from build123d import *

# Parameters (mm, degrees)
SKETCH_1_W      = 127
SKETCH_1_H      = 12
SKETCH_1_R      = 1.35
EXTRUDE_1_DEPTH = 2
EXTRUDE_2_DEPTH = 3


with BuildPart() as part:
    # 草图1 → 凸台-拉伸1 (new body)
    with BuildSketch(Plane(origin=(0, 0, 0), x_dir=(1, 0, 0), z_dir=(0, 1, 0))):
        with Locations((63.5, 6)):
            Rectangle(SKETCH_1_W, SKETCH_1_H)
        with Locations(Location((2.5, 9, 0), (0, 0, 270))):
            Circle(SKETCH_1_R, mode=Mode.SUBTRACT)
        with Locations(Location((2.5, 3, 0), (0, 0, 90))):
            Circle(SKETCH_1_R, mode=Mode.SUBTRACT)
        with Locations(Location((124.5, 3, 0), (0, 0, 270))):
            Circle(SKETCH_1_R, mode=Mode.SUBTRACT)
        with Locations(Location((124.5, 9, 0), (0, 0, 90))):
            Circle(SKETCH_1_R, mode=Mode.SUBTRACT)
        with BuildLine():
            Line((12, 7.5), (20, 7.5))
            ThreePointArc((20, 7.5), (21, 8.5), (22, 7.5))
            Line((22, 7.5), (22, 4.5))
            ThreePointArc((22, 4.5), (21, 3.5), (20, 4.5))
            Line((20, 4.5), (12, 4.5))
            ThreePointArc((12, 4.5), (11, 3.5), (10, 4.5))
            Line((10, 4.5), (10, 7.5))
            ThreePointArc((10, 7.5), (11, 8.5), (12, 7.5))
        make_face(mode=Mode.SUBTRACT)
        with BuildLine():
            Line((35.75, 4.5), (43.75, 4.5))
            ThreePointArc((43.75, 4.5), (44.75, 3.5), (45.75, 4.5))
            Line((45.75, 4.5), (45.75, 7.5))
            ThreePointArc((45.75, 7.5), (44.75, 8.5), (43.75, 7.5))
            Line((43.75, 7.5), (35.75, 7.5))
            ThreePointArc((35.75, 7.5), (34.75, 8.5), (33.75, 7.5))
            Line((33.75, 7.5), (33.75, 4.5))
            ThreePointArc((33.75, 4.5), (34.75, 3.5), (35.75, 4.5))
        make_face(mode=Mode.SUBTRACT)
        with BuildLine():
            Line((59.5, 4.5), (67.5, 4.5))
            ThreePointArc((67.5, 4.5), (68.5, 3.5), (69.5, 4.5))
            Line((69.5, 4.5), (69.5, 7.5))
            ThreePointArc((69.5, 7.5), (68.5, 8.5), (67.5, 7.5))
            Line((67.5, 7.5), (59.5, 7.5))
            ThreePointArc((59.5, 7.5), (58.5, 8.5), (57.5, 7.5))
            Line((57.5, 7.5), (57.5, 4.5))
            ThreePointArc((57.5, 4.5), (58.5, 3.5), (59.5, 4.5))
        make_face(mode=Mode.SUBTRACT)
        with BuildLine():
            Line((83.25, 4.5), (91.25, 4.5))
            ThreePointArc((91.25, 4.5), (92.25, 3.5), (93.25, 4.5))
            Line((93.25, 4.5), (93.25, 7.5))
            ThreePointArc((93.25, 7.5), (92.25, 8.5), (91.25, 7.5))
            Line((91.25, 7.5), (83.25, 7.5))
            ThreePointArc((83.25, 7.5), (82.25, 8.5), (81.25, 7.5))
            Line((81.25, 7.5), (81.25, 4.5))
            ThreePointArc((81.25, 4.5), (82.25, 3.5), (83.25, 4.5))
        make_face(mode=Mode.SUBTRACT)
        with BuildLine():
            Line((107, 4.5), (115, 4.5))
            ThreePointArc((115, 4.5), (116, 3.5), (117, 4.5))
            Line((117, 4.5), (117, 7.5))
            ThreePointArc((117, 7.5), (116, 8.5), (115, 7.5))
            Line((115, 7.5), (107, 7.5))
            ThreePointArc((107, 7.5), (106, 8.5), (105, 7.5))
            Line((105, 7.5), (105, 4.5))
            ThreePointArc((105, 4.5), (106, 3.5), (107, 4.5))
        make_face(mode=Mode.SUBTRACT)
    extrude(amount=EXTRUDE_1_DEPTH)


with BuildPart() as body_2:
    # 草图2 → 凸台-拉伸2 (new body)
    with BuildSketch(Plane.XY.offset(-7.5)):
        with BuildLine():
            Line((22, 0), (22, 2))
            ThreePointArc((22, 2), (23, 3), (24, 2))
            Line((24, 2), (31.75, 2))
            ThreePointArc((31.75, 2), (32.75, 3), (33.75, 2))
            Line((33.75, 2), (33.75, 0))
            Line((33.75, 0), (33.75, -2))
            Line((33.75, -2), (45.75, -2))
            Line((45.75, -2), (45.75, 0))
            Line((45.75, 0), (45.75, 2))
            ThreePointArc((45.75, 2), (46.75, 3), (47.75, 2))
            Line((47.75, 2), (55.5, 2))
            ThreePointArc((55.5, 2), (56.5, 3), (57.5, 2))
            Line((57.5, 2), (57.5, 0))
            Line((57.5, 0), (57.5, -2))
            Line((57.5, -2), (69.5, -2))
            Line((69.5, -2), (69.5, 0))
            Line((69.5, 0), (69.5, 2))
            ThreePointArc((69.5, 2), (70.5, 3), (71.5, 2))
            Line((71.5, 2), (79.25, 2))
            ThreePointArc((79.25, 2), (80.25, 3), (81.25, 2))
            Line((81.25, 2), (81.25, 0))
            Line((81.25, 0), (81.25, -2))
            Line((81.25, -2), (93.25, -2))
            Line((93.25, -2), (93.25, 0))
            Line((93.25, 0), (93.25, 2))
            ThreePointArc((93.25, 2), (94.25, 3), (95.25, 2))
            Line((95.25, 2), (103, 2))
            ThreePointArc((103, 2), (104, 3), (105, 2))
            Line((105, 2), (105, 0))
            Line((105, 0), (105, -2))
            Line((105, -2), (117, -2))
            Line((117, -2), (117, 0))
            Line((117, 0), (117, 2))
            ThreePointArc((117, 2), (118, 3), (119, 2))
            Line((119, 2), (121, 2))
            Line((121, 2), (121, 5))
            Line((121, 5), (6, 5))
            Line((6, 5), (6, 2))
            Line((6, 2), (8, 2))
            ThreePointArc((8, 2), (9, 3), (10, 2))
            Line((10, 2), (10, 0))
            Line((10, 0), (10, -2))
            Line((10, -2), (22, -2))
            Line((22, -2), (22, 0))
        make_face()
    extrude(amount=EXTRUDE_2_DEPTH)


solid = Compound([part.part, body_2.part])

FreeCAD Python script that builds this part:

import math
import FreeCAD as App
import Part
import Sketcher
Q = App.Units.Quantity

doc = App.newDocument("Part")
params = doc.addObject("Spreadsheet::Sheet", "Params")
for row, (alias, value) in enumerate([
    ("sketch1_radius", "1 mm"),
    ("sketch1_diameter", "2.7 mm"),
    ("sketch1_width", "127 mm"),
    ("sketch1_width2", "8 mm"),
    ("sketch1_height", "12 mm"),
    ("pad1_length", "2 mm"),
    ("sketch2_radius", "1 mm"),
    ("sketch2_width", "12 mm"),
    ("sketch2_width2", "2 mm"),
    ("sketch2_width3", "115 mm"),
    ("sketch2_height", "4 mm"),
    ("pad2_length", "3 mm"),
], start=1):
    params.set(f"A{row}", alias)
    params.set(f"B{row}", "=" + value)
    params.setAlias(f"B{row}", alias)

body = doc.addObject("PartDesign::Body", "Body")

# Sketch on XZ plane
sketch1 = body.newObject("Sketcher::SketchObject", "Sketch")
sketch1.AttachmentSupport = (doc.getObject("XZ_Plane"), [""])
sketch1.MapMode = "FlatFace"
sketch1.addGeometry(Part.LineSegment(App.Vector(0, -12, 0), App.Vector(0, 0, 0)), False)
sketch1.addGeometry(Part.LineSegment(App.Vector(0, 0, 0), App.Vector(127, 0, 0)), False)
sketch1.addGeometry(Part.LineSegment(App.Vector(127, 0, 0), App.Vector(127, -12, 0)), False)
sketch1.addGeometry(Part.LineSegment(App.Vector(127, -12, 0), App.Vector(0, -12, 0)), False)
sketch1.addGeometry(Part.Circle(App.Vector(2.5, -3, 0), App.Vector(0, 0, 1), 1.35), False)
sketch1.addGeometry(Part.Circle(App.Vector(124.5, -3, 0), App.Vector(0, 0, 1), 1.35), False)
sketch1.addGeometry(Part.ArcOfCircle(Part.Circle(App.Vector(11, -7.5, 0), App.Vector(0, 0, 1), 1), math.radians(180), math.radians(360)), False)
sketch1.addGeometry(Part.LineSegment(App.Vector(12, -7.5, 0), App.Vector(20, -7.5, 0)), False)
sketch1.addGeometry(Part.ArcOfCircle(Part.Circle(App.Vector(21, -7.5, 0), App.Vector(0, 0, 1), 1), math.radians(180), math.radians(360)), False)
sketch1.addGeometry(Part.LineSegment(App.Vector(22, -7.5, 0), App.Vector(22, -4.5, 0)), False)
sketch1.addGeometry(Part.ArcOfCircle(Part.Circle(App.Vector(21, -4.5, 0), App.Vector(0, 0, 1), 1), math.radians(0), math.radians(180)), False)
sketch1.addGeometry(Part.LineSegment(App.Vector(20, -4.5, 0), App.Vector(12, -4.5, 0)), False)
sketch1.addGeometry(Part.ArcOfCircle(Part.Circle(App.Vector(11, -4.5, 0), App.Vector(0, 0, 1), 1), math.radians(0), math.radians(180)), False)
sketch1.addGeometry(Part.LineSegment(App.Vector(10, -4.5, 0), App.Vector(10, -7.5, 0)), False)
sketch1.addGeometry(Part.LineSegment(App.Vector(43.75, -4.5, 0), App.Vector(35.75, -4.5, 0)), False)
sketch1.addGeometry(Part.ArcOfCircle(Part.Circle(App.Vector(34.75, -4.5, 0), App.Vector(0, 0, 1), 1), math.radians(0), math.radians(180)), False)
sketch1.addGeometry(Part.LineSegment(App.Vector(33.75, -4.5, 0), App.Vector(33.75, -7.5, 0)), False)
sketch1.addGeometry(Part.ArcOfCircle(Part.Circle(App.Vector(34.75, -7.5, 0), App.Vector(0, 0, 1), 1), math.radians(180), math.radians(360)), False)
sketch1.addGeometry(Part.LineSegment(App.Vector(35.75, -7.5, 0), App.Vector(43.75, -7.5, 0)), False)
sketch1.addGeometry(Part.ArcOfCircle(Part.Circle(App.Vector(44.75, -7.5, 0), App.Vector(0, 0, 1), 1), math.radians(180), math.radians(360)), False)
sketch1.addGeometry(Part.LineSegment(App.Vector(45.75, -7.5, 0), App.Vector(45.75, -4.5, 0)), False)
sketch1.addGeometry(Part.ArcOfCircle(Part.Circle(App.Vector(44.75, -4.5, 0), App.Vector(0, 0, 1), 1), math.radians(0), math.radians(180)), False)
sketch1.addGeometry(Part.Circle(App.Vector(2.5, -9, 0), App.Vector(0, 0, 1), 1.35), False)
sketch1.addGeometry(Part.LineSegment(App.Vector(67.5, -4.5, 0), App.Vector(59.5, -4.5, 0)), False)
sketch1.addGeometry(Part.ArcOfCircle(Part.Circle(App.Vector(58.5, -4.5, 0), App.Vector(0, 0, 1), 1), math.radians(0), math.radians(180)), False)
sketch1.addGeometry(Part.LineSegment(App.Vector(57.5, -4.5, 0), App.Vector(57.5, -7.5, 0)), False)
sketch1.addGeometry(Part.ArcOfCircle(Part.Circle(App.Vector(58.5, -7.5, 0), App.Vector(0, 0, 1), 1), math.radians(180), math.radians(360)), False)
sketch1.addGeometry(Part.LineSegment(App.Vector(59.5, -7.5, 0), App.Vector(67.5, -7.5, 0)), False)
sketch1.addGeometry(Part.ArcOfCircle(Part.Circle(App.Vector(68.5, -7.5, 0), App.Vector(0, 0, 1), 1), math.radians(180), math.radians(360)), False)
sketch1.addGeometry(Part.LineSegment(App.Vector(69.5, -7.5, 0), App.Vector(69.5, -4.5, 0)), False)
sketch1.addGeometry(Part.ArcOfCircle(Part.Circle(App.Vector(68.5, -4.5, 0), App.Vector(0, 0, 1), 1), math.radians(0), math.radians(180)), False)
sketch1.addGeometry(Part.LineSegment(App.Vector(91.25, -4.5, 0), App.Vector(83.25, -4.5, 0)), False)
sketch1.addGeometry(Part.ArcOfCircle(Part.Circle(App.Vector(82.25, -4.5, 0), App.Vector(0, 0, 1), 1), math.radians(0), math.radians(180)), False)
sketch1.addGeometry(Part.LineSegment(App.Vector(81.25, -4.5, 0), App.Vector(81.25, -7.5, 0)), False)
sketch1.addGeometry(Part.ArcOfCircle(Part.Circle(App.Vector(82.25, -7.5, 0), App.Vector(0, 0, 1), 1), math.radians(180), math.radians(360)), False)
sketch1.addGeometry(Part.LineSegment(App.Vector(83.25, -7.5, 0), App.Vector(91.25, -7.5, 0)), False)
sketch1.addGeometry(Part.ArcOfCircle(Part.Circle(App.Vector(92.25, -7.5, 0), App.Vector(0, 0, 1), 1), math.radians(180), math.radians(360)), False)
sketch1.addGeometry(Part.LineSegment(App.Vector(93.25, -7.5, 0), App.Vector(93.25, -4.5, 0)), False)
sketch1.addGeometry(Part.ArcOfCircle(Part.Circle(App.Vector(92.25, -4.5, 0), App.Vector(0, 0, 1), 1), math.radians(0), math.radians(180)), False)
sketch1.addGeometry(Part.LineSegment(App.Vector(115, -4.5, 0), App.Vector(107, -4.5, 0)), False)
sketch1.addGeometry(Part.ArcOfCircle(Part.Circle(App.Vector(106, -4.5, 0), App.Vector(0, 0, 1), 1), math.radians(0), math.radians(180)), False)
sketch1.addGeometry(Part.LineSegment(App.Vector(105, -4.5, 0), App.Vector(105, -7.5, 0)), False)
sketch1.addGeometry(Part.ArcOfCircle(Part.Circle(App.Vector(106, -7.5, 0), App.Vector(0, 0, 1), 1), math.radians(180), math.radians(360)), False)
sketch1.addGeometry(Part.LineSegment(App.Vector(107, -7.5, 0), App.Vector(115, -7.5, 0)), False)
sketch1.addGeometry(Part.ArcOfCircle(Part.Circle(App.Vector(116, -7.5, 0), App.Vector(0, 0, 1), 1), math.radians(180), math.radians(360)), False)
sketch1.addGeometry(Part.LineSegment(App.Vector(117, -7.5, 0), App.Vector(117, -4.5, 0)), False)
sketch1.addGeometry(Part.ArcOfCircle(Part.Circle(App.Vector(116, -4.5, 0), App.Vector(0, 0, 1), 1), math.radians(0), math.radians(180)), False)
sketch1.addGeometry(Part.Circle(App.Vector(124.5, -9, 0), App.Vector(0, 0, 1), 1.35), False)
sketch1.addConstraint(Sketcher.Constraint("Coincident", 0, 2, 1, 1))
sketch1.addConstraint(Sketcher.Constraint("Coincident", 1, 2, 2, 1))
sketch1.addConstraint(Sketcher.Constraint("Coincident", 2, 2, 3, 1))
sketch1.addConstraint(Sketcher.Constraint("Coincident", 3, 2, 0, 1))
sketch1.addConstraint(Sketcher.Constraint("Coincident", 6, 2, 7, 1))
sketch1.addConstraint(Sketcher.Constraint("Coincident", 7, 2, 8, 1))
sketch1.addConstraint(Sketcher.Constraint("Tangent", 8, 2, 9, 1))
sketch1.addConstraint(Sketcher.Constraint("Tangent", 9, 2, 10, 1))
sketch1.addConstraint(Sketcher.Constraint("Coincident", 10, 2, 11, 1))
sketch1.addConstraint(Sketcher.Constraint("Coincident", 11, 2, 12, 1))
sketch1.addConstraint(Sketcher.Constraint("Tangent", 12, 2, 13, 1))
sketch1.addConstraint(Sketcher.Constraint("Tangent", 13, 2, 6, 1))
sketch1.addConstraint(Sketcher.Constraint("Coincident", 14, 2, 15, 1))
sketch1.addConstraint(Sketcher.Constraint("Tangent", 15, 2, 16, 1))
sketch1.addConstraint(Sketcher.Constraint("Tangent", 16, 2, 17, 1))
sketch1.addConstraint(Sketcher.Constraint("Coincident", 17, 2, 18, 1))
sketch1.addConstraint(Sketcher.Constraint("Coincident", 18, 2, 19, 1))
sketch1.addConstraint(Sketcher.Constraint("Tangent", 19, 2, 20, 1))
sketch1.addConstraint(Sketcher.Constraint("Tangent", 20, 2, 21, 1))
sketch1.addConstraint(Sketcher.Constraint("Coincident", 21, 2, 14, 1))
sketch1.addConstraint(Sketcher.Constraint("Coincident", 23, 2, 24, 1))
sketch1.addConstraint(Sketcher.Constraint("Tangent", 24, 2, 25, 1))
sketch1.addConstraint(Sketcher.Constraint("Tangent", 25, 2, 26, 1))
sketch1.addConstraint(Sketcher.Constraint("Coincident", 26, 2, 27, 1))
sketch1.addConstraint(Sketcher.Constraint("Coincident", 27, 2, 28, 1))
sketch1.addConstraint(Sketcher.Constraint("Tangent", 28, 2, 29, 1))
sketch1.addConstraint(Sketcher.Constraint("Tangent", 29, 2, 30, 1))
sketch1.addConstraint(Sketcher.Constraint("Coincident", 30, 2, 23, 1))
sketch1.addConstraint(Sketcher.Constraint("Coincident", 31, 2, 32, 1))
sketch1.addConstraint(Sketcher.Constraint("Tangent", 32, 2, 33, 1))
sketch1.addConstraint(Sketcher.Constraint("Tangent", 33, 2, 34, 1))
sketch1.addConstraint(Sketcher.Constraint("Coincident", 34, 2, 35, 1))
sketch1.addConstraint(Sketcher.Constraint("Coincident", 35, 2, 36, 1))
sketch1.addConstraint(Sketcher.Constraint("Tangent", 36, 2, 37, 1))
sketch1.addConstraint(Sketcher.Constraint("Tangent", 37, 2, 38, 1))
sketch1.addConstraint(Sketcher.Constraint("Coincident", 38, 2, 31, 1))
sketch1.addConstraint(Sketcher.Constraint("Coincident", 39, 2, 40, 1))
sketch1.addConstraint(Sketcher.Constraint("Tangent", 40, 2, 41, 1))
sketch1.addConstraint(Sketcher.Constraint("Tangent", 41, 2, 42, 1))
sketch1.addConstraint(Sketcher.Constraint("Coincident", 42, 2, 43, 1))
sketch1.addConstraint(Sketcher.Constraint("Coincident", 43, 2, 44, 1))
sketch1.addConstraint(Sketcher.Constraint("Tangent", 44, 2, 45, 1))
sketch1.addConstraint(Sketcher.Constraint("Tangent", 45, 2, 46, 1))
sketch1.addConstraint(Sketcher.Constraint("Coincident", 46, 2, 39, 1))
sketch1.addConstraint(Sketcher.Constraint("Vertical", 0))
sketch1.addConstraint(Sketcher.Constraint("Horizontal", 1))
sketch1.addConstraint(Sketcher.Constraint("Vertical", 2))
sketch1.addConstraint(Sketcher.Constraint("Horizontal", 3))
sketch1.addConstraint(Sketcher.Constraint("Horizontal", 7))
sketch1.addConstraint(Sketcher.Constraint("Vertical", 9))
sketch1.addConstraint(Sketcher.Constraint("Horizontal", 11))
sketch1.addConstraint(Sketcher.Constraint("Vertical", 13))
sketch1.addConstraint(Sketcher.Constraint("Horizontal", 14))
sketch1.addConstraint(Sketcher.Constraint("Vertical", 16))
sketch1.addConstraint(Sketcher.Constraint("Horizontal", 18))
sketch1.addConstraint(Sketcher.Constraint("Vertical", 20))
sketch1.addConstraint(Sketcher.Constraint("Horizontal", 23))
sketch1.addConstraint(Sketcher.Constraint("Vertical", 25))
sketch1.addConstraint(Sketcher.Constraint("Horizontal", 27))
sketch1.addConstraint(Sketcher.Constraint("Vertical", 29))
sketch1.addConstraint(Sketcher.Constraint("Horizontal", 31))
sketch1.addConstraint(Sketcher.Constraint("Vertical", 33))
sketch1.addConstraint(Sketcher.Constraint("Horizontal", 35))
sketch1.addConstraint(Sketcher.Constraint("Vertical", 37))
sketch1.addConstraint(Sketcher.Constraint("Horizontal", 39))
sketch1.addConstraint(Sketcher.Constraint("Vertical", 41))
sketch1.addConstraint(Sketcher.Constraint("Horizontal", 43))
sketch1.addConstraint(Sketcher.Constraint("Vertical", 45))
sketch1.addConstraint(Sketcher.Constraint("Coincident", 0, 2, -1, 1))
sketch1.addConstraint(Sketcher.Constraint("Equal", 4, 5))
sketch1.addConstraint(Sketcher.Constraint("Equal", 6, 8))
sketch1.addConstraint(Sketcher.Constraint("Equal", 8, 10))
sketch1.addConstraint(Sketcher.Constraint("Equal", 10, 12))
sketch1.addConstraint(Sketcher.Constraint("Equal", 12, 15))
sketch1.addConstraint(Sketcher.Constraint("Equal", 15, 17))
sketch1.addConstraint(Sketcher.Constraint("Equal", 17, 19))
sketch1.addConstraint(Sketcher.Constraint("Equal", 19, 21))
sketch1.addConstraint(Sketcher.Constraint("Equal", 5, 22))
sketch1.addConstraint(Sketcher.Constraint("Equal", 21, 24))
sketch1.addConstraint(Sketcher.Constraint("Equal", 24, 26))
sketch1.addConstraint(Sketcher.Constraint("Equal", 26, 28))
sketch1.addConstraint(Sketcher.Constraint("Equal", 28, 30))
sketch1.addConstraint(Sketcher.Constraint("Equal", 30, 32))
sketch1.addConstraint(Sketcher.Constraint("Equal", 32, 34))
sketch1.addConstraint(Sketcher.Constraint("Equal", 34, 36))
sketch1.addConstraint(Sketcher.Constraint("Equal", 36, 38))
sketch1.addConstraint(Sketcher.Constraint("Equal", 38, 40))
sketch1.addConstraint(Sketcher.Constraint("Equal", 40, 42))
sketch1.addConstraint(Sketcher.Constraint("Equal", 42, 44))
sketch1.addConstraint(Sketcher.Constraint("Equal", 44, 46))
sketch1.addConstraint(Sketcher.Constraint("Equal", 22, 47))
sketch1.addConstraint(Sketcher.Constraint("Horizontal", 4, 3, 5, 3))
sketch1.addConstraint(Sketcher.Constraint("Horizontal", 6, 3, 8, 3))
sketch1.addConstraint(Sketcher.Constraint("Horizontal", 10, 3, 12, 3))
sketch1.addConstraint(Sketcher.Constraint("Horizontal", 12, 3, 15, 3))
sketch1.addConstraint(Sketcher.Constraint("Horizontal", 8, 3, 17, 3))
sketch1.addConstraint(Sketcher.Constraint("Horizontal", 17, 3, 19, 3))
sketch1.addConstraint(Sketcher.Constraint("Horizontal", 15, 3, 21, 3))
sketch1.addConstraint(Sketcher.Constraint("Horizontal", 21, 3, 24, 3))
sketch1.addConstraint(Sketcher.Constraint("Horizontal", 19, 3, 26, 3))
sketch1.addConstraint(Sketcher.Constraint("Horizontal", 26, 3, 28, 3))
sketch1.addConstraint(Sketcher.Constraint("Horizontal", 24, 3, 30, 3))
sketch1.addConstraint(Sketcher.Constraint("Horizontal", 30, 3, 32, 3))
sketch1.addConstraint(Sketcher.Constraint("Horizontal", 28, 3, 34, 3))
sketch1.addConstraint(Sketcher.Constraint("Horizontal", 34, 3, 36, 3))
sketch1.addConstraint(Sketcher.Constraint("Horizontal", 32, 3, 38, 3))
sketch1.addConstraint(Sketcher.Constraint("Horizontal", 38, 3, 40, 3))
sketch1.addConstraint(Sketcher.Constraint("Horizontal", 36, 3, 42, 3))
sketch1.addConstraint(Sketcher.Constraint("Horizontal", 42, 3, 44, 3))
sketch1.addConstraint(Sketcher.Constraint("Horizontal", 40, 3, 46, 3))
sketch1.addConstraint(Sketcher.Constraint("Horizontal", 22, 3, 47, 3))
sketch1.addConstraint(Sketcher.Constraint("Horizontal", 44, 3, 6, 2))
sketch1.addConstraint(Sketcher.Constraint("Horizontal", 9, 2, 10, 2))
sketch1.addConstraint(Sketcher.Constraint("Horizontal", 12, 2, 14, 2))
sketch1.addConstraint(Sketcher.Constraint("Horizontal", 16, 2, 17, 2))
sketch1.addConstraint(Sketcher.Constraint("Horizontal", 21, 2, 23, 2))
sketch1.addConstraint(Sketcher.Constraint("Horizontal", 25, 2, 26, 2))
sketch1.addConstraint(Sketcher.Constraint("Horizontal", 30, 2, 31, 2))
sketch1.addConstraint(Sketcher.Constraint("Horizontal", 33, 2, 34, 2))
sketch1.addConstraint(Sketcher.Constraint("Horizontal", 38, 2, 39, 2))
sketch1.addConstraint(Sketcher.Constraint("Horizontal", 41, 2, 42, 2))
sketch1.addConstraint(Sketcher.Constraint("Vertical", 4, 3, 22, 3))
sketch1.addConstraint(Sketcher.Constraint("Vertical", 5, 3, 47, 3))
sketch1.addConstraint(Sketcher.Constraint("Equal", 11, 14))
sketch1.addConstraint(Sketcher.Constraint("Equal", 18, 23))
sketch1.addConstraint(Sketcher.Constraint("Equal", 27, 31))
sketch1.addConstraint(Sketcher.Constraint("Equal", 35, 39))
sketch1.addConstraint(Sketcher.Constraint("Radius", 6, Q("1 mm")))
sketch1.addConstraint(Sketcher.Constraint("Diameter", 4, Q("2.7 mm")))
sketch1.addConstraint(Sketcher.Constraint("DistanceX", 1, 1, 1, 2, Q("127 mm")))
sketch1.addConstraint(Sketcher.Constraint("DistanceX", 7, 1, 7, 2, Q("8 mm")))
sketch1.addConstraint(Sketcher.Constraint("DistanceY", 0, 1, 0, 2, Q("12 mm")))
sketch1.addConstraint(Sketcher.Constraint("DistanceY", 9, 1, 9, 2, Q("3 mm")))
sketch1.addConstraint(Sketcher.Constraint("DistanceY", 4, 3, -1, 1, Q("3 mm")))
sketch1.addConstraint(Sketcher.Constraint("DistanceX", -1, 1, 6, 3, Q("11 mm")))
sketch1.addConstraint(Sketcher.Constraint("DistanceY", 22, 3, -1, 1, Q("9 mm")))
sketch1.addConstraint(Sketcher.Constraint("DistanceX", -1, 1, 40, 3, Q("106 mm")))
sketch1.addConstraint(Sketcher.Constraint("DistanceX", -1, 1, 4, 3, Q("2.5 mm")))
sketch1.addConstraint(Sketcher.Constraint("DistanceX", -1, 1, 5, 3, Q("124.5 mm")))
sketch1.addConstraint(Sketcher.Constraint("DistanceY", 6, 3, -1, 1, Q("7.5 mm")))
sketch1.addConstraint(Sketcher.Constraint("DistanceX", -1, 1, 24, 3, Q("58.5 mm")))
sketch1.addConstraint(Sketcher.Constraint("DistanceX", -1, 1, 15, 3, Q("34.75 mm")))
sketch1.addConstraint(Sketcher.Constraint("DistanceX", -1, 1, 32, 3, Q("82.25 mm")))
sketch1.setExpression("Constraints[127]", "Params.sketch1_radius")
sketch1.setExpression("Constraints[128]", "Params.sketch1_diameter")
sketch1.setExpression("Constraints[129]", "Params.sketch1_width")
sketch1.setExpression("Constraints[130]", "Params.sketch1_width2")
sketch1.setExpression("Constraints[131]", "Params.sketch1_height")
pad1 = body.newObject("PartDesign::Pad", "Pad")
pad1.Profile = sketch1
pad1.setExpression("Length", "Params.pad1_length")
pad1.Reversed = True
body2 = doc.addObject("PartDesign::Body", "Body001")

# Sketch on XY plane
sketch2 = body2.newObject("Sketcher::SketchObject", "Sketch001")
sketch2.AttachmentSupport = (doc.getObject("XY_Plane001"), [""])
sketch2.MapMode = "FlatFace"
sketch2.AttachmentOffset = App.Placement(App.Vector(0, 0, -7.5), App.Rotation())
sketch2.addGeometry(Part.ArcOfCircle(Part.Circle(App.Vector(23, 2, 0), App.Vector(0, 0, 1), 1), math.radians(0), math.radians(180)), False)
sketch2.addGeometry(Part.LineSegment(App.Vector(24, 2, 0), App.Vector(31.75, 2, 0)), False)
sketch2.addGeometry(Part.ArcOfCircle(Part.Circle(App.Vector(32.75, 2, 0), App.Vector(0, 0, 1), 1), math.radians(0), math.radians(180)), False)
sketch2.addGeometry(Part.LineSegment(App.Vector(33.75, 2, 0), App.Vector(33.75, -2, 0)), False)
sketch2.addGeometry(Part.LineSegment(App.Vector(33.75, -2, 0), App.Vector(45.75, -2, 0)), False)
sketch2.addGeometry(Part.LineSegment(App.Vector(45.75, -2, 0), App.Vector(45.75, 2, 0)), False)
sketch2.addGeometry(Part.ArcOfCircle(Part.Circle(App.Vector(46.75, 2, 0), App.Vector(0, 0, 1), 1), math.radians(0), math.radians(180)), False)
sketch2.addGeometry(Part.LineSegment(App.Vector(47.75, 2, 0), App.Vector(55.5, 2, 0)), False)
sketch2.addGeometry(Part.ArcOfCircle(Part.Circle(App.Vector(56.5, 2, 0), App.Vector(0, 0, 1), 1), math.radians(0), math.radians(180)), False)
sketch2.addGeometry(Part.LineSegment(App.Vector(57.5, 2, 0), App.Vector(57.5, -2, 0)), False)
sketch2.addGeometry(Part.LineSegment(App.Vector(57.5, -2, 0), App.Vector(69.5, -2, 0)), False)
sketch2.addGeometry(Part.LineSegment(App.Vector(69.5, -2, 0), App.Vector(69.5, 2, 0)), False)
sketch2.addGeometry(Part.ArcOfCircle(Part.Circle(App.Vector(70.5, 2, 0), App.Vector(0, 0, 1), 1), math.radians(0), math.radians(180)), False)
sketch2.addGeometry(Part.LineSegment(App.Vector(71.5, 2, 0), App.Vector(79.25, 2, 0)), False)
sketch2.addGeometry(Part.ArcOfCircle(Part.Circle(App.Vector(80.25, 2, 0), App.Vector(0, 0, 1), 1), math.radians(0), math.radians(180)), False)
sketch2.addGeometry(Part.LineSegment(App.Vector(81.25, 2, 0), App.Vector(81.25, -2, 0)), False)
sketch2.addGeometry(Part.LineSegment(App.Vector(81.25, -2, 0), App.Vector(93.25, -2, 0)), False)
sketch2.addGeometry(Part.LineSegment(App.Vector(93.25, -2, 0), App.Vector(93.25, 2, 0)), False)
sketch2.addGeometry(Part.ArcOfCircle(Part.Circle(App.Vector(94.25, 2, 0), App.Vector(0, 0, 1), 1), math.radians(0), math.radians(180)), False)
sketch2.addGeometry(Part.LineSegment(App.Vector(95.25, 2, 0), App.Vector(103, 2, 0)), False)
sketch2.addGeometry(Part.ArcOfCircle(Part.Circle(App.Vector(104, 2, 0), App.Vector(0, 0, 1), 1), math.radians(0), math.radians(180)), False)
sketch2.addGeometry(Part.LineSegment(App.Vector(105, 2, 0), App.Vector(105, -2, 0)), False)
sketch2.addGeometry(Part.LineSegment(App.Vector(105, -2, 0), App.Vector(117, -2, 0)), False)
sketch2.addGeometry(Part.LineSegment(App.Vector(117, -2, 0), App.Vector(117, 2, 0)), False)
sketch2.addGeometry(Part.ArcOfCircle(Part.Circle(App.Vector(118, 2, 0), App.Vector(0, 0, 1), 1), math.radians(0), math.radians(180)), False)
sketch2.addGeometry(Part.LineSegment(App.Vector(119, 2, 0), App.Vector(121, 2, 0)), False)
sketch2.addGeometry(Part.LineSegment(App.Vector(121, 2, 0), App.Vector(121, 5, 0)), False)
sketch2.addGeometry(Part.LineSegment(App.Vector(121, 5, 0), App.Vector(6, 5, 0)), False)
sketch2.addGeometry(Part.LineSegment(App.Vector(6, 5, 0), App.Vector(6, 2, 0)), False)
sketch2.addGeometry(Part.LineSegment(App.Vector(6, 2, 0), App.Vector(8, 2, 0)), False)
sketch2.addGeometry(Part.ArcOfCircle(Part.Circle(App.Vector(9, 2, 0), App.Vector(0, 0, 1), 1), math.radians(0), math.radians(180)), False)
sketch2.addGeometry(Part.LineSegment(App.Vector(10, 2, 0), App.Vector(10, -2, 0)), False)
sketch2.addGeometry(Part.LineSegment(App.Vector(10, -2, 0), App.Vector(22, -2, 0)), False)
sketch2.addGeometry(Part.LineSegment(App.Vector(22, -2, 0), App.Vector(22, 2, 0)), False)
sketch2.addConstraint(Sketcher.Constraint("Coincident", 0, 1, 1, 1))
sketch2.addConstraint(Sketcher.Constraint("Coincident", 1, 2, 2, 2))
sketch2.addConstraint(Sketcher.Constraint("Tangent", 2, 1, 3, 1))
sketch2.addConstraint(Sketcher.Constraint("Coincident", 3, 2, 4, 1))
sketch2.addConstraint(Sketcher.Constraint("Coincident", 4, 2, 5, 1))
sketch2.addConstraint(Sketcher.Constraint("Tangent", 5, 2, 6, 2))
sketch2.addConstraint(Sketcher.Constraint("Coincident", 6, 1, 7, 1))
sketch2.addConstraint(Sketcher.Constraint("Coincident", 7, 2, 8, 2))
sketch2.addConstraint(Sketcher.Constraint("Tangent", 8, 1, 9, 1))
sketch2.addConstraint(Sketcher.Constraint("Coincident", 9, 2, 10, 1))
sketch2.addConstraint(Sketcher.Constraint("Coincident", 10, 2, 11, 1))
sketch2.addConstraint(Sketcher.Constraint("Tangent", 11, 2, 12, 2))
sketch2.addConstraint(Sketcher.Constraint("Coincident", 12, 1, 13, 1))
sketch2.addConstraint(Sketcher.Constraint("Coincident", 13, 2, 14, 2))
sketch2.addConstraint(Sketcher.Constraint("Tangent", 14, 1, 15, 1))
sketch2.addConstraint(Sketcher.Constraint("Coincident", 15, 2, 16, 1))
sketch2.addConstraint(Sketcher.Constraint("Coincident", 16, 2, 17, 1))
sketch2.addConstraint(Sketcher.Constraint("Tangent", 17, 2, 18, 2))
sketch2.addConstraint(Sketcher.Constraint("Coincident", 18, 1, 19, 1))
sketch2.addConstraint(Sketcher.Constraint("Coincident", 19, 2, 20, 2))
sketch2.addConstraint(Sketcher.Constraint("Tangent", 20, 1, 21, 1))
sketch2.addConstraint(Sketcher.Constraint("Coincident", 21, 2, 22, 1))
sketch2.addConstraint(Sketcher.Constraint("Coincident", 22, 2, 23, 1))
sketch2.addConstraint(Sketcher.Constraint("Tangent", 23, 2, 24, 2))
sketch2.addConstraint(Sketcher.Constraint("Coincident", 24, 1, 25, 1))
sketch2.addConstraint(Sketcher.Constraint("Coincident", 25, 2, 26, 1))
sketch2.addConstraint(Sketcher.Constraint("Coincident", 26, 2, 27, 1))
sketch2.addConstraint(Sketcher.Constraint("Coincident", 27, 2, 28, 1))
sketch2.addConstraint(Sketcher.Constraint("Coincident", 28, 2, 29, 1))
sketch2.addConstraint(Sketcher.Constraint("Coincident", 29, 2, 30, 2))
sketch2.addConstraint(Sketcher.Constraint("Tangent", 30, 1, 31, 1))
sketch2.addConstraint(Sketcher.Constraint("Coincident", 31, 2, 32, 1))
sketch2.addConstraint(Sketcher.Constraint("Coincident", 32, 2, 33, 1))
sketch2.addConstraint(Sketcher.Constraint("Tangent", 33, 2, 0, 2))
sketch2.addConstraint(Sketcher.Constraint("Horizontal", 1))
sketch2.addConstraint(Sketcher.Constraint("Vertical", 3))
sketch2.addConstraint(Sketcher.Constraint("Horizontal", 4))
sketch2.addConstraint(Sketcher.Constraint("Vertical", 5))
sketch2.addConstraint(Sketcher.Constraint("Horizontal", 7))
sketch2.addConstraint(Sketcher.Constraint("Vertical", 9))
sketch2.addConstraint(Sketcher.Constraint("Horizontal", 10))
sketch2.addConstraint(Sketcher.Constraint("Vertical", 11))
sketch2.addConstraint(Sketcher.Constraint("Horizontal", 13))
sketch2.addConstraint(Sketcher.Constraint("Vertical", 15))
sketch2.addConstraint(Sketcher.Constraint("Horizontal", 16))
sketch2.addConstraint(Sketcher.Constraint("Vertical", 17))
sketch2.addConstraint(Sketcher.Constraint("Horizontal", 19))
sketch2.addConstraint(Sketcher.Constraint("Vertical", 21))
sketch2.addConstraint(Sketcher.Constraint("Horizontal", 22))
sketch2.addConstraint(Sketcher.Constraint("Vertical", 23))
sketch2.addConstraint(Sketcher.Constraint("Horizontal", 25))
sketch2.addConstraint(Sketcher.Constraint("Vertical", 26))
sketch2.addConstraint(Sketcher.Constraint("Horizontal", 27))
sketch2.addConstraint(Sketcher.Constraint("Vertical", 28))
sketch2.addConstraint(Sketcher.Constraint("Horizontal", 29))
sketch2.addConstraint(Sketcher.Constraint("Vertical", 31))
sketch2.addConstraint(Sketcher.Constraint("Horizontal", 32))
sketch2.addConstraint(Sketcher.Constraint("Vertical", 33))
sketch2.addConstraint(Sketcher.Constraint("Equal", 0, 2))
sketch2.addConstraint(Sketcher.Constraint("Equal", 2, 6))
sketch2.addConstraint(Sketcher.Constraint("Equal", 6, 8))
sketch2.addConstraint(Sketcher.Constraint("Equal", 8, 12))
sketch2.addConstraint(Sketcher.Constraint("Equal", 12, 14))
sketch2.addConstraint(Sketcher.Constraint("Equal", 14, 18))
sketch2.addConstraint(Sketcher.Constraint("Equal", 18, 20))
sketch2.addConstraint(Sketcher.Constraint("Equal", 20, 24))
sketch2.addConstraint(Sketcher.Constraint("Equal", 24, 30))
sketch2.addConstraint(Sketcher.Constraint("Horizontal", 0, 3, 2, 3))
sketch2.addConstraint(Sketcher.Constraint("Horizontal", 2, 3, 6, 3))
sketch2.addConstraint(Sketcher.Constraint("Horizontal", 6, 3, 8, 3))
sketch2.addConstraint(Sketcher.Constraint("Horizontal", 8, 3, 12, 3))
sketch2.addConstraint(Sketcher.Constraint("Horizontal", 12, 3, 14, 3))
sketch2.addConstraint(Sketcher.Constraint("Horizontal", 14, 3, 18, 3))
sketch2.addConstraint(Sketcher.Constraint("Horizontal", 18, 3, 20, 3))
sketch2.addConstraint(Sketcher.Constraint("Horizontal", 20, 3, 24, 3))
sketch2.addConstraint(Sketcher.Constraint("Horizontal", 24, 3, 30, 3))
sketch2.addConstraint(Sketcher.Constraint("Horizontal", 30, 3, 0, 1))
sketch2.addConstraint(Sketcher.Constraint("Horizontal", 5, 2, 6, 1))
sketch2.addConstraint(Sketcher.Constraint("Horizontal", 4, 2, 9, 2))
sketch2.addConstraint(Sketcher.Constraint("Horizontal", 11, 2, 12, 1))
sketch2.addConstraint(Sketcher.Constraint("Horizontal", 10, 2, 15, 2))
sketch2.addConstraint(Sketcher.Constraint("Horizontal", 17, 2, 18, 1))
sketch2.addConstraint(Sketcher.Constraint("Horizontal", 16, 2, 21, 2))
sketch2.addConstraint(Sketcher.Constraint("Horizontal", 23, 2, 24, 1))
sketch2.addConstraint(Sketcher.Constraint("Horizontal", 25, 2, 28, 2))
sketch2.addConstraint(Sketcher.Constraint("Horizontal", 22, 2, 31, 2))
sketch2.addConstraint(Sketcher.Constraint("Equal", 1, 7))
sketch2.addConstraint(Sketcher.Constraint("Equal", 4, 10))
sketch2.addConstraint(Sketcher.Constraint("Equal", 7, 13))
sketch2.addConstraint(Sketcher.Constraint("Equal", 10, 16))
sketch2.addConstraint(Sketcher.Constraint("Equal", 13, 19))
sketch2.addConstraint(Sketcher.Constraint("Equal", 16, 22))
sketch2.addConstraint(Sketcher.Constraint("Equal", 25, 29))
sketch2.addConstraint(Sketcher.Constraint("Equal", 22, 32))
sketch2.addConstraint(Sketcher.Constraint("Radius", 0, Q("1 mm")))
sketch2.addConstraint(Sketcher.Constraint("DistanceX", 4, 1, 4, 2, Q("12 mm")))
sketch2.addConstraint(Sketcher.Constraint("DistanceX", 25, 1, 25, 2, Q("2 mm")))
sketch2.addConstraint(Sketcher.Constraint("DistanceX", 27, 2, 27, 1, Q("115 mm")))
sketch2.addConstraint(Sketcher.Constraint("DistanceY", 3, 2, 3, 1, Q("4 mm")))
sketch2.addConstraint(Sketcher.Constraint("DistanceY", 26, 1, 26, 2, Q("3 mm")))
sketch2.addConstraint(Sketcher.Constraint("DistanceX", -1, 1, 0, 3, Q("23 mm")))
sketch2.addConstraint(Sketcher.Constraint("DistanceY", -1, 1, 0, 3, Q("2 mm")))
sketch2.setExpression("Constraints[94]", "Params.sketch2_radius")
sketch2.setExpression("Constraints[95]", "Params.sketch2_width")
sketch2.setExpression("Constraints[96]", "Params.sketch2_width2")
sketch2.setExpression("Constraints[97]", "Params.sketch2_width3")
sketch2.setExpression("Constraints[98]", "Params.sketch2_height")
pad2 = body2.newObject("PartDesign::Pad", "Pad001")
pad2.Profile = sketch2
pad2.setExpression("Length", "Params.pad2_length")

doc.recompute()
